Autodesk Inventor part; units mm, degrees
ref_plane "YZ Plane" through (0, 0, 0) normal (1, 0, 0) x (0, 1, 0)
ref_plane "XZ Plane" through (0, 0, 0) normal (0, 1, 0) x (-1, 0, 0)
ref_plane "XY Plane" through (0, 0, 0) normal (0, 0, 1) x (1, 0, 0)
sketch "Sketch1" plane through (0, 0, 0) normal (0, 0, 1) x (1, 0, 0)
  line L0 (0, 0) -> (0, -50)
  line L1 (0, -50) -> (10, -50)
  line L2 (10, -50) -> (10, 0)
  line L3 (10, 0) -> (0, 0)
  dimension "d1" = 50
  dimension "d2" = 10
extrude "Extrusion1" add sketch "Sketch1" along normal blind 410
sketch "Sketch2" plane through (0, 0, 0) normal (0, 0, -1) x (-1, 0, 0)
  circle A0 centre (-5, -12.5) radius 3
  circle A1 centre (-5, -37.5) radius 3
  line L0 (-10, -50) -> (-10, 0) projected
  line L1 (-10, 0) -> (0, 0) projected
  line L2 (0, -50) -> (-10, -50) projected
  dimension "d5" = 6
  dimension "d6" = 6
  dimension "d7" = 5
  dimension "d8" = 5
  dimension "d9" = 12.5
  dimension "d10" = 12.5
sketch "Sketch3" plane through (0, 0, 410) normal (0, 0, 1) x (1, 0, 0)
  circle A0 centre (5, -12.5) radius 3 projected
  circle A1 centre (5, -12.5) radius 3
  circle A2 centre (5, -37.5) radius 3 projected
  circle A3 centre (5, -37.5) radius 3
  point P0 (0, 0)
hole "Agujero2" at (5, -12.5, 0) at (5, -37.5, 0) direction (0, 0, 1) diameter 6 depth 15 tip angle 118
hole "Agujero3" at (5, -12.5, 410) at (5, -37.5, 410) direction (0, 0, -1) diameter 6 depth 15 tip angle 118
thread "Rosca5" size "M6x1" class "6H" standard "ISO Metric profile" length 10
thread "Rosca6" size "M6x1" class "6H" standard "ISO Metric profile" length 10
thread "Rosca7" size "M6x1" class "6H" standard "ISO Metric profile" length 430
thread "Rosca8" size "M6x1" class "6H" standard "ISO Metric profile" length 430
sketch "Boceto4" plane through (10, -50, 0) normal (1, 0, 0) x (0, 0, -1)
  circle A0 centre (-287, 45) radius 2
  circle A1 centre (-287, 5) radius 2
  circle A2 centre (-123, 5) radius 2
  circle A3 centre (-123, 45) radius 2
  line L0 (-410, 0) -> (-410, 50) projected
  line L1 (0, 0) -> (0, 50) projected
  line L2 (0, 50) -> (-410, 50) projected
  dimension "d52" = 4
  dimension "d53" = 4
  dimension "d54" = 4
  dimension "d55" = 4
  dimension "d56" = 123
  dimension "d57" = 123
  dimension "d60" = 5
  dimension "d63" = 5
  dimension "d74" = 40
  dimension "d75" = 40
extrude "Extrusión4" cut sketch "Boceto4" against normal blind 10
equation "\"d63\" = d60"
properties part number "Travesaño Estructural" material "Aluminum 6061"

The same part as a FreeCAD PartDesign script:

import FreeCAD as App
import Part
import Sketcher


def add_polygon(sketch, points):
    """Adds a closed chain of lines whose ends are joined by coincident constraints."""
    first, n = sketch.GeometryCount, len(points)
    for a, b in zip(points, points[1:] + points[:1]):
        sketch.addGeometry(Part.LineSegment(App.Vector(*a, 0), App.Vector(*b, 0)), False)
    for i in range(n):
        sketch.addConstraint(Sketcher.Constraint("Coincident", first + i, 2, first + (i + 1) % n, 1))

doc = App.newDocument("Part")
body = doc.addObject("PartDesign::Body", "Body")

# Sketch on XY plane
sketch1 = body.newObject("Sketcher::SketchObject", "Sketch")
sketch1.AttachmentSupport = (doc.getObject("XY_Plane"), [""])
sketch1.MapMode = "FlatFace"
add_polygon(sketch1, [(10, 0), (0, 0), (0, -50), (10, -50)])  # lines 0-3
sketch1.addConstraint([
    Sketcher.Constraint("Horizontal", 0),
    Sketcher.Constraint("Vertical", 1),
    Sketcher.Constraint("Horizontal", 2),
    Sketcher.Constraint("Vertical", 3),
    Sketcher.Constraint("Coincident", 0, 2, -1, 1),
    Sketcher.Constraint("DistanceX", 0, 2, 0, 1, 10.0),
    Sketcher.Constraint("DistanceY", 1, 2, 1, 1, 50.0),
])
pad1 = body.newObject("PartDesign::Pad", "Pad")
pad1.Profile = sketch1
pad1.Length = 410

# Sketch on XY plane
sketch2 = body.newObject("Sketcher::SketchObject", "Sketch001")
sketch2.AttachmentSupport = (doc.getObject("XY_Plane"), [""])
sketch2.MapMode = "FlatFace"
sketch2.addGeometry([
    Part.Circle(App.Vector(5, -12.5, 0), App.Vector(0, 0, 1), 3),
    Part.Circle(App.Vector(5, -37.5, 0), App.Vector(0, 0, 1), 3),
], False)
sketch2.addConstraint([
    Sketcher.Constraint("Equal", 0, 1),
    Sketcher.Constraint("Vertical", 0, 3, 1, 3),
    Sketcher.Constraint("Diameter", 0, 6.0),
    Sketcher.Constraint("DistanceX", -1, 1, 0, 3, 5.0),
    Sketcher.Constraint("DistanceY", 1, 3, 0, 3, 25.0),
    Sketcher.Constraint("DistanceY", 0, 3, -1, 1, 12.5),
])
doc.recompute()
hole = body.newObject("PartDesign::Hole", "Hole")
hole.Profile = sketch2
hole.ThreadType = "None"
hole.Diameter = 6
hole.DepthType = "Dimension"
hole.Depth = 15
hole.DrillPoint = "Angled"
hole.DrillPointAngle = 118
hole.Reversed = True

# Sketch on XY plane
sketch3 = body.newObject("Sketcher::SketchObject", "Sketch002")
sketch3.AttachmentSupport = (doc.getObject("XY_Plane"), [""])
sketch3.MapMode = "FlatFace"
sketch3.AttachmentOffset = App.Placement(App.Vector(0, 0, 410), App.Rotation())
sketch3.addGeometry([
    Part.Circle(App.Vector(5, -12.5, 0), App.Vector(0, 0, 1), 3),
    Part.Circle(App.Vector(5, -37.5, 0), App.Vector(0, 0, 1), 3),
], False)
sketch3.addConstraint([
    Sketcher.Constraint("Equal", 0, 1),
    Sketcher.Constraint("Vertical", 0, 3, 1, 3),
    Sketcher.Constraint("Diameter", 0, 6.0),
    Sketcher.Constraint("DistanceX", -1, 1, 0, 3, 5.0),
    Sketcher.Constraint("DistanceY", 1, 3, 0, 3, 25.0),
    Sketcher.Constraint("DistanceY", 0, 3, -1, 1, 12.5),
])
doc.recompute()
hole2 = body.newObject("PartDesign::Hole", "Hole001")
hole2.Profile = sketch3
hole2.ThreadType = "None"
hole2.Diameter = 6
hole2.DepthType = "Dimension"
hole2.Depth = 15
hole2.DrillPoint = "Angled"
hole2.DrillPointAngle = 118

# Sketch on YZ plane
sketch4 = body.newObject("Sketcher::SketchObject", "Sketch003")
sketch4.AttachmentSupport = (doc.getObject("YZ_Plane"), [""])
sketch4.MapMode = "FlatFace"
sketch4.AttachmentOffset = App.Placement(App.Vector(0, 0, 10), App.Rotation())
sketch4.addGeometry([
    Part.Circle(App.Vector(-5, 287, 0), App.Vector(0, 0, 1), 2),
    Part.Circle(App.Vector(-45, 287, 0), App.Vector(0, 0, 1), 2),
    Part.Circle(App.Vector(-45, 123, 0), App.Vector(0, 0, 1), 2),
    Part.Circle(App.Vector(-5, 123, 0), App.Vector(0, 0, 1), 2),
], False)
sketch4.addConstraint([
    Sketcher.Constraint("Equal", 0, 1),
    Sketcher.Constraint("Equal", 1, 2),
    Sketcher.Constraint("Equal", 2, 3),
    Sketcher.Constraint("Horizontal", 0, 3, 1, 3),
    Sketcher.Constraint("Horizontal", 2, 3, 3, 3),
    Sketcher.Constraint("Vertical", 1, 3, 2, 3),
    Sketcher.Constraint("Vertical", 0, 3, 3, 3),
    Sketcher.Constraint("Diameter", 0, 4.0),
    Sketcher.Constraint("DistanceX", 0, 3, -1, 1, 5.0),
    Sketcher.Constraint("DistanceY", -1, 1, 2, 3, 123.0),
    Sketcher.Constraint("DistanceX", 1, 3, 0, 3, 40.0),
    Sketcher.Constraint("DistanceY", -1, 1, 0, 3, 287.0),
])
pocket1 = body.newObject("PartDesign::Pocket", "Pocket")
pocket1.Profile = sketch4
pocket1.Length = 10

doc.recompute()
